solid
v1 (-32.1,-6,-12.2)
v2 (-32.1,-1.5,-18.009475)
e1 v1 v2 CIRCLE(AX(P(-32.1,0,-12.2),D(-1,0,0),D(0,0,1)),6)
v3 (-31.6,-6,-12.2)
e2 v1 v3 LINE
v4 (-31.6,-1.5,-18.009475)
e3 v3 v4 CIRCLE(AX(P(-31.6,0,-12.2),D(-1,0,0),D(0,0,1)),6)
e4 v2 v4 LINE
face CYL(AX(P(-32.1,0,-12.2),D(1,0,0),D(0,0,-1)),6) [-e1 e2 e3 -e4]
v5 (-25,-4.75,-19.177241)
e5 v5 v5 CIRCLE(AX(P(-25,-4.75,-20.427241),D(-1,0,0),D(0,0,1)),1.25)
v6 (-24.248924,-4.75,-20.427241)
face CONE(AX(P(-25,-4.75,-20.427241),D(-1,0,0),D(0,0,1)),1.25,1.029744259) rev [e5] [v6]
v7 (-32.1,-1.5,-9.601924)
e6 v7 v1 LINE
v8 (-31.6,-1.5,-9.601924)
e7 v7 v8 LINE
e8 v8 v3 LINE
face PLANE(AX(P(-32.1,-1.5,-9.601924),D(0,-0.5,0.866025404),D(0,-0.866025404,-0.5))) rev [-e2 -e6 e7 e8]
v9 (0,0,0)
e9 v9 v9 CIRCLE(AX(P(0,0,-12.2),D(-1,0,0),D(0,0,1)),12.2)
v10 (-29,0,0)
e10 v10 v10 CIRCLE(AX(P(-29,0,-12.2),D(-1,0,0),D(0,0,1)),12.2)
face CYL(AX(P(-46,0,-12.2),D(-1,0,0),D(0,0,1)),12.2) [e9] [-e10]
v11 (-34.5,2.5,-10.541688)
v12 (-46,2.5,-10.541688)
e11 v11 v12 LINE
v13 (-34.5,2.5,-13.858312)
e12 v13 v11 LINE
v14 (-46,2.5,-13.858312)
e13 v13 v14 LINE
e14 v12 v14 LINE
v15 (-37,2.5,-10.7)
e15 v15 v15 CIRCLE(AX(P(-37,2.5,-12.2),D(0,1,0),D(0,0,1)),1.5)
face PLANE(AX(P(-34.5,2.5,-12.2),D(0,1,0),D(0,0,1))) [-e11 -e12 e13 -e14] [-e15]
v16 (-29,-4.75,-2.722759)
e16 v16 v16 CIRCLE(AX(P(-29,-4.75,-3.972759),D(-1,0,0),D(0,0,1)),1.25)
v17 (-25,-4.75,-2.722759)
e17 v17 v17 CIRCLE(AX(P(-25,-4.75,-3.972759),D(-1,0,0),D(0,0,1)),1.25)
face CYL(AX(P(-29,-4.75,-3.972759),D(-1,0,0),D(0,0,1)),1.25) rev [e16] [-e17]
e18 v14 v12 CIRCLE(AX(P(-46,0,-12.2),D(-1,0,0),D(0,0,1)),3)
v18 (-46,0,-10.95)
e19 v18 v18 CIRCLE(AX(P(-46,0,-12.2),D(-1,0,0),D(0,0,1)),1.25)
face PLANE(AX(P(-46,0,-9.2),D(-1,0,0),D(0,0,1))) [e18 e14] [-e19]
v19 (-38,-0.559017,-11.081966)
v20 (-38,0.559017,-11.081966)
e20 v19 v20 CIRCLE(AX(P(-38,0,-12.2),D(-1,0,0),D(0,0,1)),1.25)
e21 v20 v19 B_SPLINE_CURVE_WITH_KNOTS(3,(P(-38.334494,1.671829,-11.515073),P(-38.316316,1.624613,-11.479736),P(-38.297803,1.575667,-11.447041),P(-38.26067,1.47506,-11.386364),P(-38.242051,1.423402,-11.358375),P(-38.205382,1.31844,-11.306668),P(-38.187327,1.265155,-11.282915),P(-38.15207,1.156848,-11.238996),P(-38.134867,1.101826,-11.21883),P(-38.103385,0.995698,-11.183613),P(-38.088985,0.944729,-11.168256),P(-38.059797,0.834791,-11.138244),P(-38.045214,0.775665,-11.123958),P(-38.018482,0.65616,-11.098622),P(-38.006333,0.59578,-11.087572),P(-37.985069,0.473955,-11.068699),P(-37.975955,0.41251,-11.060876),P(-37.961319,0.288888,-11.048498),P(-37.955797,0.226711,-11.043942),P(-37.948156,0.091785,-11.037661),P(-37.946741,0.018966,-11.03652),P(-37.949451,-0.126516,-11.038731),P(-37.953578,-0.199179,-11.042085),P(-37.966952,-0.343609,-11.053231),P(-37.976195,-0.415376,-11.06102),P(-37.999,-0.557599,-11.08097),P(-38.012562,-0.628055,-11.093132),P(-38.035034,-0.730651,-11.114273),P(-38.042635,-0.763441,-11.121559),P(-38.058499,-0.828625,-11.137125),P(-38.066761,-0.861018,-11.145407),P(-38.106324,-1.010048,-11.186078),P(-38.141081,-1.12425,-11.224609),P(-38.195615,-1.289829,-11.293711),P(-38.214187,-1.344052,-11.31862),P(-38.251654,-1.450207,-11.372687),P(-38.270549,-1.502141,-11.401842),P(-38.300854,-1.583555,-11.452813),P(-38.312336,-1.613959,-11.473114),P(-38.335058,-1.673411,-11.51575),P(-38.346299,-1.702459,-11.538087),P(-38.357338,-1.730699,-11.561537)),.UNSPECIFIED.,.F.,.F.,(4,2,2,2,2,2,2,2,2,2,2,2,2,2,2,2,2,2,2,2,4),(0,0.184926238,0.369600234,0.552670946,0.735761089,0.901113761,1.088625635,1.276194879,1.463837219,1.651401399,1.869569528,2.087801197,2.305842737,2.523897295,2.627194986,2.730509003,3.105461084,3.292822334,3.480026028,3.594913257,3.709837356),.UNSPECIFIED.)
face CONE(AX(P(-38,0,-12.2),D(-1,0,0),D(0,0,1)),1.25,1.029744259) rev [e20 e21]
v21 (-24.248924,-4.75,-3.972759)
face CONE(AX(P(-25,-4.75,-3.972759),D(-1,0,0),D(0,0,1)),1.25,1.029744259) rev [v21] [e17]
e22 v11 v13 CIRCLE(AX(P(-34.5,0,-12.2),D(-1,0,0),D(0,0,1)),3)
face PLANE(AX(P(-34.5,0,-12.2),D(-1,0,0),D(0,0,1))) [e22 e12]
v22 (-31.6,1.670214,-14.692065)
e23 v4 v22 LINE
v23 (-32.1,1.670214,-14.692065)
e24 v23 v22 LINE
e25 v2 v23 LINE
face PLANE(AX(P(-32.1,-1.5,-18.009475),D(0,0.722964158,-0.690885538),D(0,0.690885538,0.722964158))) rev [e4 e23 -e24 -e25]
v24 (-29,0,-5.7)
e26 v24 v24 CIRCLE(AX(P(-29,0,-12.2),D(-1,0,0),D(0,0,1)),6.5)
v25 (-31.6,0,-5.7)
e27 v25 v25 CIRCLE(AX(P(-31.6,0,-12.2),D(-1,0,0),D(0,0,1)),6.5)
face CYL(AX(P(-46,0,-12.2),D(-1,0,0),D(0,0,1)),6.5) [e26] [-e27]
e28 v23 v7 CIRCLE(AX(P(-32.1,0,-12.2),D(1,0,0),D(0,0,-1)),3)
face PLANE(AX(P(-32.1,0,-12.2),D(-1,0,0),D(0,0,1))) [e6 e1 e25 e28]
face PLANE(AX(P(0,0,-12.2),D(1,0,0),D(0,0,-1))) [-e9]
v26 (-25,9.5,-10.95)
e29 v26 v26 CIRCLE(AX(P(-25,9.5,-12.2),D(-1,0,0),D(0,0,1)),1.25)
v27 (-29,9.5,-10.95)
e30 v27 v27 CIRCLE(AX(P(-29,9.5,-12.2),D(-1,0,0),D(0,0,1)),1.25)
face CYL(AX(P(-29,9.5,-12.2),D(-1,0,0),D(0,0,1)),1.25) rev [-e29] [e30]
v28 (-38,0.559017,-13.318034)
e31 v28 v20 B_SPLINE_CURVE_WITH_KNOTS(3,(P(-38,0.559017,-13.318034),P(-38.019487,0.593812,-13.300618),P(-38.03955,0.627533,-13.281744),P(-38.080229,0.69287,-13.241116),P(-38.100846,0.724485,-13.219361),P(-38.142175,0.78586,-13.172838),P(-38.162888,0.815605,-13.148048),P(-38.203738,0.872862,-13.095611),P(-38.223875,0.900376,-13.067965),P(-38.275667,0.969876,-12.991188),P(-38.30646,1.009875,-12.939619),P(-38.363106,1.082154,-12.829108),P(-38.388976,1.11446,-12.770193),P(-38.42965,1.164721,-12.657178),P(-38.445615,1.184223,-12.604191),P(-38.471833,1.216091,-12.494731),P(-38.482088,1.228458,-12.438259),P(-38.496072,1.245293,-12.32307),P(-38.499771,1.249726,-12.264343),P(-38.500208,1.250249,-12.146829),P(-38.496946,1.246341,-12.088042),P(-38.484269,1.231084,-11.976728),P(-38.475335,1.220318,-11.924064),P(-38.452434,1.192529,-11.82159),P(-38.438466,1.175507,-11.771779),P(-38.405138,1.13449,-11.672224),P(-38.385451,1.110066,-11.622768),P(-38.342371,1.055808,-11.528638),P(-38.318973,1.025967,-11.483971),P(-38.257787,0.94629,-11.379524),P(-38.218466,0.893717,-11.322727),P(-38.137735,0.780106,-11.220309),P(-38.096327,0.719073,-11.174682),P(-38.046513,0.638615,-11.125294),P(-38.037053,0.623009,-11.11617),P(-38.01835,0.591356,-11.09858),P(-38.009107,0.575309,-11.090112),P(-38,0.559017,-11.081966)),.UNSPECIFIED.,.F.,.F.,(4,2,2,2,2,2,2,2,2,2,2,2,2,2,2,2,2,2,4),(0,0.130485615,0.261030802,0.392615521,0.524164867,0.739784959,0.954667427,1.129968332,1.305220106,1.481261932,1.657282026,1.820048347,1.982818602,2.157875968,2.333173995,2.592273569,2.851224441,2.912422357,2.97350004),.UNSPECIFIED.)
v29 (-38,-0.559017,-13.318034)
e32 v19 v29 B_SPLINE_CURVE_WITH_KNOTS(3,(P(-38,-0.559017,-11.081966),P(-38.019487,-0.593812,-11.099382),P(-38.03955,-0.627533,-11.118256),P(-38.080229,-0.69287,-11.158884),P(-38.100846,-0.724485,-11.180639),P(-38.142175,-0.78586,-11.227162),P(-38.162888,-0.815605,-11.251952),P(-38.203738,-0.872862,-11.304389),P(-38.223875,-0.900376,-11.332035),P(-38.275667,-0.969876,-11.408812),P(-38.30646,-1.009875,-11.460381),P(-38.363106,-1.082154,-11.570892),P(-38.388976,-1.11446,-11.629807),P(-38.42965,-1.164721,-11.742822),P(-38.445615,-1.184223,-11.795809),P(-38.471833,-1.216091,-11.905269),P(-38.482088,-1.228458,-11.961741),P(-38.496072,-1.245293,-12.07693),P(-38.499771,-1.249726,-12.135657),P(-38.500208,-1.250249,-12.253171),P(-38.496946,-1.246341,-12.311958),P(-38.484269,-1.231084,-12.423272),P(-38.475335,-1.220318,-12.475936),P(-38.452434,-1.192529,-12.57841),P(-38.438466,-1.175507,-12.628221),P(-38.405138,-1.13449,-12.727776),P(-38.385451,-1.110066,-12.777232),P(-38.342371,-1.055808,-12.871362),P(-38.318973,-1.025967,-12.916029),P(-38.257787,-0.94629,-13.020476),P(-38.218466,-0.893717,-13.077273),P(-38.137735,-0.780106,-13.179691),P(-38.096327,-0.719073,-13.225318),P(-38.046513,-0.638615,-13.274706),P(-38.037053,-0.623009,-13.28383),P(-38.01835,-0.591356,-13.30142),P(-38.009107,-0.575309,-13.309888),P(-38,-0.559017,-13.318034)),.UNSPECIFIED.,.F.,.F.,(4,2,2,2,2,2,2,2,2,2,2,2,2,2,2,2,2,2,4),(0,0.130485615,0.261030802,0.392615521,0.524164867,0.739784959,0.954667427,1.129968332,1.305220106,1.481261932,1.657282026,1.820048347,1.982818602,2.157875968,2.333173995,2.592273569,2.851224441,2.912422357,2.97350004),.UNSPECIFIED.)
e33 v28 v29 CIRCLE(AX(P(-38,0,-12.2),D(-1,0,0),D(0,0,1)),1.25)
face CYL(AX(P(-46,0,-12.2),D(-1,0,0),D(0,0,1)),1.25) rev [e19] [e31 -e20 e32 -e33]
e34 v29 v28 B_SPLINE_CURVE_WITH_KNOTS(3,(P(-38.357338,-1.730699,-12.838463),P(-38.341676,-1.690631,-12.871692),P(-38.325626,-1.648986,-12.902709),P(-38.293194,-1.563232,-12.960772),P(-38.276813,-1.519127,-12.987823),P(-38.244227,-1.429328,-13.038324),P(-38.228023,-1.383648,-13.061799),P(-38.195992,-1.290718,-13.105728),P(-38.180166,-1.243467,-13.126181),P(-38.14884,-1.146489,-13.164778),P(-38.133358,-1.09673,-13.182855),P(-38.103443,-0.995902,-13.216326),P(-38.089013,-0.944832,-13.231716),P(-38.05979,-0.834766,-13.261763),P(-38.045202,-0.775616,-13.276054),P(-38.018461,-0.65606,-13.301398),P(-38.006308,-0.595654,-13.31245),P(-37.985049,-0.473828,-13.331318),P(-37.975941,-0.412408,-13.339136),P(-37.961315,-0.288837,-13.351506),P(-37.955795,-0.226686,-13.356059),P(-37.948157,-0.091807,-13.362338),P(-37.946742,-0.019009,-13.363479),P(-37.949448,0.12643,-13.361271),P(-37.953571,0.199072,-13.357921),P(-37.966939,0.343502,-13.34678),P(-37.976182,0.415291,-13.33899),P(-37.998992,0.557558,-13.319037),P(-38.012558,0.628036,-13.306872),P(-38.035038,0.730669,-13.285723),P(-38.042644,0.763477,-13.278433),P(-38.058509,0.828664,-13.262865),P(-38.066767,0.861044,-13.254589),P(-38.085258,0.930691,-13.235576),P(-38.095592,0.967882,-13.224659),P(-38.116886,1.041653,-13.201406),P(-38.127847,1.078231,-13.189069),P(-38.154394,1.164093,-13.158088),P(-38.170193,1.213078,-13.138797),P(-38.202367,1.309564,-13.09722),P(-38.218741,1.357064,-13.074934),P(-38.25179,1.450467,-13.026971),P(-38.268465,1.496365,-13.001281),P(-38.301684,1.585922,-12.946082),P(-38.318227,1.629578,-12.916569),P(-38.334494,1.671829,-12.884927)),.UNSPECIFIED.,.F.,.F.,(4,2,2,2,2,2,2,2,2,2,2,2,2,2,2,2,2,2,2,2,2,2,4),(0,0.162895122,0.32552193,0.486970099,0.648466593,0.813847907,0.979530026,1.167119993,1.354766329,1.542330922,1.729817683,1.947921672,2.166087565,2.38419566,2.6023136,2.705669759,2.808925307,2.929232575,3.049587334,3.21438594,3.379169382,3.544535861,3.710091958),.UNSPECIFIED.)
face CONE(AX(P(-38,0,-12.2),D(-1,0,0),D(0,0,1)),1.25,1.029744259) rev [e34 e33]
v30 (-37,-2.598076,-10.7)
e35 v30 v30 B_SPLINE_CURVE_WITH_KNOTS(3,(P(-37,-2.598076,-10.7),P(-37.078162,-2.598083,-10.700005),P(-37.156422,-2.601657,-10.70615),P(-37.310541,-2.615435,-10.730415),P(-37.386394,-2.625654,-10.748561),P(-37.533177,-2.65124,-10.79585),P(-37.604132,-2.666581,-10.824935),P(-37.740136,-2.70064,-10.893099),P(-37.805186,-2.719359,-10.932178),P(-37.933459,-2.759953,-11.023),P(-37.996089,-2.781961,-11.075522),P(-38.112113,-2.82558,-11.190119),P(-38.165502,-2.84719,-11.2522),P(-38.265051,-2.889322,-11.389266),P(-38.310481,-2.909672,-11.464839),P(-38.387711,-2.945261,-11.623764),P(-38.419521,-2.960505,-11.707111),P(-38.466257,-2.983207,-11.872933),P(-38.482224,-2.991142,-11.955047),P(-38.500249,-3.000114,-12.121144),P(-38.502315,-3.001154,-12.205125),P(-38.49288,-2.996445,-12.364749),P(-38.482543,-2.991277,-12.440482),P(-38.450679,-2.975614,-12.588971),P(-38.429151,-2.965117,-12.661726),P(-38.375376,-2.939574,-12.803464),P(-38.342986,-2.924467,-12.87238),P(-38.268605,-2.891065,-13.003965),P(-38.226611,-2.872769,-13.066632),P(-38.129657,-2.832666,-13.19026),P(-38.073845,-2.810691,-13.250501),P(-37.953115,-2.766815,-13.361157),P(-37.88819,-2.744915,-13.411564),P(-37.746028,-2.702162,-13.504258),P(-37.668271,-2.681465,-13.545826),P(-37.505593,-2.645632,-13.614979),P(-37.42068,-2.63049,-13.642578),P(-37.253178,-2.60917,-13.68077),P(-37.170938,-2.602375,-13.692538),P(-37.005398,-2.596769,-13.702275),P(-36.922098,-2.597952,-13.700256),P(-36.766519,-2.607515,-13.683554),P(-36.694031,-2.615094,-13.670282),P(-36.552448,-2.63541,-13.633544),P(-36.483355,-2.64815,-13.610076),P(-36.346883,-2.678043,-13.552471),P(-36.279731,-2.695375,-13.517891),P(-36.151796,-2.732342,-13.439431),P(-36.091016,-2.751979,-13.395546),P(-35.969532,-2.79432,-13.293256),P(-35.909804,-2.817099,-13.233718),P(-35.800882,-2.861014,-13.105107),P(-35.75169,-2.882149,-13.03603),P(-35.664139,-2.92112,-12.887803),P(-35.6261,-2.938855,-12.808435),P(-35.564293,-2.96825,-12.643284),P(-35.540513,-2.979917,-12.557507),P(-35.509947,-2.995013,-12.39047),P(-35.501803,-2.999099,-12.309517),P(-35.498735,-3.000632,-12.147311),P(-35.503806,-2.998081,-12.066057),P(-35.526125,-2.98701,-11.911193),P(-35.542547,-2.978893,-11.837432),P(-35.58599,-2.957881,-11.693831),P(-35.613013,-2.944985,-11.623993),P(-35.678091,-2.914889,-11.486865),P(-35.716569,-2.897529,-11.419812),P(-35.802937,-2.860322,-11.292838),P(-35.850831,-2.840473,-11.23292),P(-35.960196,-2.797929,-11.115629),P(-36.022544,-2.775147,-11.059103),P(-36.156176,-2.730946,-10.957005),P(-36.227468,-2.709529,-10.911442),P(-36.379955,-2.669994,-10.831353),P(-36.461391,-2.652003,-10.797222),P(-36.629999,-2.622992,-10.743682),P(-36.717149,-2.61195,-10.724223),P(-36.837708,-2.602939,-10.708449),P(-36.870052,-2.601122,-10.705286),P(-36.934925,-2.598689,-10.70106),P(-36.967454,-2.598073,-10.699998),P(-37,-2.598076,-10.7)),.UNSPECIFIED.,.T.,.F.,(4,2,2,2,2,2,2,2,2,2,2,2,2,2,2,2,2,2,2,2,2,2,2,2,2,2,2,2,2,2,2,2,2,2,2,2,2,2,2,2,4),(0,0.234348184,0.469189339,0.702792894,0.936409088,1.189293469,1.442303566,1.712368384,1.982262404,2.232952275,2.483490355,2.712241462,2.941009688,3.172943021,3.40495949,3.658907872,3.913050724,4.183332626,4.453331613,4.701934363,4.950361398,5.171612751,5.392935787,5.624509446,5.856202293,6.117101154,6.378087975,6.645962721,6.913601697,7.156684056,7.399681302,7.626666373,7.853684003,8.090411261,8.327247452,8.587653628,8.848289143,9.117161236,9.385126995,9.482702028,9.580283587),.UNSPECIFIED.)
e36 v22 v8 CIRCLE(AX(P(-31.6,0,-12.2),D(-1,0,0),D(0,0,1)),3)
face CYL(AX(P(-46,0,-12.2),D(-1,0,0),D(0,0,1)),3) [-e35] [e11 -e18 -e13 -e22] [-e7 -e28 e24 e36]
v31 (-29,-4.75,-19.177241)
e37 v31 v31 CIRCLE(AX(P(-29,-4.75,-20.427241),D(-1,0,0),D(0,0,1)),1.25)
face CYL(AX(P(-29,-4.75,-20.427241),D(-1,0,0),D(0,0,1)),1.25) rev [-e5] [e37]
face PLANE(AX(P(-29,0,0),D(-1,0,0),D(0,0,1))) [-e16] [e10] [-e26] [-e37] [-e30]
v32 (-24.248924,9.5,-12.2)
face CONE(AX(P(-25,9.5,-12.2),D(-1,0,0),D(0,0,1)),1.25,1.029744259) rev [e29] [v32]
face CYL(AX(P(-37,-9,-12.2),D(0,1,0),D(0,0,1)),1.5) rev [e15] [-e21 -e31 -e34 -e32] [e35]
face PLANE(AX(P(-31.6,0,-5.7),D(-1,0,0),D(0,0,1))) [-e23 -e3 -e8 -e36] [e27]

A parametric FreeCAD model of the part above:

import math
import FreeCAD as App
import Part
import Sketcher
Q = App.Units.Quantity

doc = App.newDocument("Part")
params = doc.addObject("Spreadsheet::Sheet", "Params")
for row, (alias, value) in enumerate([
    ("sketch1_width", "29 mm"),
    ("sketch1_width2", "46 mm"),
    ("sketch1_height", "3 mm"),
    ("sketch1_width3", "14.4 mm"),
    ("sketch1_height2", "12.2 mm"),
    ("revolution_angle", "360 deg"),
    ("sketch2_radius", "3 mm"),
    ("pocket1_length", "11.5 mm"),
    ("sketch3_diameter", "2.5 mm"),
    ("hole_diameter", "2.5 mm"),
    ("hole_depth", "8 mm"),
    ("sketch4_diameter", "3 mm"),
    ("pocket2_length", "11.5 mm"),
    ("sketch5_diameter", "2.5 mm"),
    ("hole2_diameter", "2.5 mm"),
    ("hole2_depth", "4 mm"),
    ("sketch6_radius", "6 mm"),
    ("sketch6_radius2", "3 mm"),
    ("pad1_length", "0.5 mm"),
], start=1):
    params.set(f"A{row}", alias)
    params.set(f"B{row}", "=" + value)
    params.setAlias(f"B{row}", alias)

body = doc.addObject("PartDesign::Body", "Body")

# Sketch on XZ plane
sketch1 = doc.addObject("Sketcher::SketchObject", "Sketch")
body.addObject(sketch1)
sketch1.AttachmentSupport = (doc.XZ_Plane, [""])
sketch1.MapMode = "FlatFace"
sketch1.addGeometry([
    Part.LineSegment(App.Vector(-29, 0, 0), App.Vector(0, 0, 0)),  # 0
    Part.LineSegment(App.Vector(0, 0, 0), App.Vector(0, -12.2, 0)),  # 1
    Part.LineSegment(App.Vector(0, -12.2, 0), App.Vector(-46, -12.2, 0)),  # 2
    Part.LineSegment(App.Vector(-46, -12.2, 0), App.Vector(-46, -9.2, 0)),  # 3
    Part.LineSegment(App.Vector(-46, -9.2, 0), App.Vector(-31.6, -9.2, 0)),  # 4
    Part.LineSegment(App.Vector(-31.6, -9.2, 0), App.Vector(-31.6, -5.7, 0)),  # 5
    Part.LineSegment(App.Vector(-31.6, -5.7, 0), App.Vector(-29, -5.7, 0)),  # 6
    Part.LineSegment(App.Vector(-29, -5.7, 0), App.Vector(-29, 0, 0)),  # 7
], False)
sketch1.addGeometry(Part.LineSegment(App.Vector(-46, -12.2, 0), App.Vector(0, -12.2, 0)), True)  # axis
sketch1.addConstraint([
    Sketcher.Constraint("Coincident", 0, 2, 1, 1),
    Sketcher.Constraint("Coincident", 1, 2, 2, 1),
    Sketcher.Constraint("Coincident", 2, 2, 3, 1),
    Sketcher.Constraint("Coincident", 3, 2, 4, 1),
    Sketcher.Constraint("Coincident", 4, 2, 5, 1),
    Sketcher.Constraint("Coincident", 5, 2, 6, 1),
    Sketcher.Constraint("Coincident", 6, 2, 7, 1),
    Sketcher.Constraint("Coincident", 7, 2, 0, 1),
    Sketcher.Constraint("Horizontal", 0),
    Sketcher.Constraint("Vertical", 1),
    Sketcher.Constraint("Horizontal", 2),
    Sketcher.Constraint("Vertical", 3),
    Sketcher.Constraint("Horizontal", 4),
    Sketcher.Constraint("Vertical", 5),
    Sketcher.Constraint("Horizontal", 6),
    Sketcher.Constraint("Vertical", 7),
    Sketcher.Constraint("Horizontal", 8),
    Sketcher.Constraint("Coincident", 0, 2, -1, 1),
    Sketcher.Constraint("Coincident", 8, 1, 2, 2),
    Sketcher.Constraint("PointOnObject", 8, 2, -2),
    Sketcher.Constraint("DistanceX", 0, 1, 0, 2, Q("29 mm")),
    Sketcher.Constraint("DistanceX", 2, 2, 2, 1, Q("46 mm")),
    Sketcher.Constraint("DistanceY", 3, 1, 3, 2, Q("3 mm")),
    Sketcher.Constraint("DistanceX", 4, 1, 4, 2, Q("14.4 mm")),
    Sketcher.Constraint("DistanceY", 1, 2, 1, 1, Q("12.2 mm")),
    Sketcher.Constraint("DistanceY", 5, 1, 5, 2, Q("3.5 mm")),
])
sketch1.setExpression("Constraints[20]", "Params.sketch1_width")
sketch1.setExpression("Constraints[21]", "Params.sketch1_width2")
sketch1.setExpression("Constraints[22]", "Params.sketch1_height")
sketch1.setExpression("Constraints[23]", "Params.sketch1_width3")
sketch1.setExpression("Constraints[24]", "Params.sketch1_height2")
revolution = doc.addObject("PartDesign::Revolution", "Revolution")
body.addObject(revolution)
revolution.Profile = sketch1
revolution.ReferenceAxis = (sketch1, ["Axis0"])
revolution.setExpression("Angle", "Params.revolution_angle")

# Sketch on YZ plane
sketch2 = doc.addObject("Sketcher::SketchObject", "Sketch001")
body.addObject(sketch2)
sketch2.AttachmentSupport = (doc.YZ_Plane, [""])
sketch2.MapMode = "FlatFace"
sketch2.AttachmentOffset = App.Placement(App.Vector(0, 0, -46), App.Rotation())
sketch2.addGeometry([
    Part.ArcOfCircle(Part.Circle(App.Vector(0, -12.2, 0), App.Vector(0, 0, 1), 3), math.radians(-34), math.radians(34)),
    Part.LineSegment(App.Vector(2.5, -13.9, 0), App.Vector(2.5, -10.5, 0)),
], False)
sketch2.addConstraint([
    Sketcher.Constraint("Coincident", 0, 1, 1, 1),
    Sketcher.Constraint("Coincident", 1, 2, 0, 2),
    Sketcher.Constraint("Vertical", 1),
    Sketcher.Constraint("PointOnObject", 0, 3, -2),
    Sketcher.Constraint("Radius", 0, Q("3 mm")),
    Sketcher.Constraint("DistanceY", 0, 3, -1, 1, Q("12.2 mm")),
    Sketcher.Constraint("DistanceX", -1, 1, 0, 1, Q("2.5 mm")),
])
sketch2.setExpression("Constraints[4]", "Params.sketch2_radius")
pocket1 = doc.addObject("PartDesign::Pocket", "Pocket")
body.addObject(pocket1)
pocket1.Profile = sketch2
pocket1.setExpression("Length", "Params.pocket1_length")
pocket1.Reversed = True

# Sketch on YZ plane
sketch3 = doc.addObject("Sketcher::SketchObject", "Sketch002")
body.addObject(sketch3)
sketch3.AttachmentSupport = (doc.YZ_Plane, [""])
sketch3.MapMode = "FlatFace"
sketch3.AttachmentOffset = App.Placement(App.Vector(0, 0, -46), App.Rotation())
sketch3.addGeometry(Part.Circle(App.Vector(0, -12.2, 0), App.Vector(0, 0, 1), 1.2), False)
sketch3.addConstraint([
    Sketcher.Constraint("PointOnObject", 0, 3, -2),
    Sketcher.Constraint("Diameter", 0, Q("2.5 mm")),
    Sketcher.Constraint("DistanceY", 0, 3, -1, 1, Q("12.2 mm")),
])
sketch3.setExpression("Constraints[1]", "Params.sketch3_diameter")
doc.recompute()
hole = doc.addObject("PartDesign::Hole", "Hole")
body.addObject(hole)
hole.Profile = sketch3
hole.ThreadType = "None"
hole.setExpression("Diameter", "Params.hole_diameter")
hole.DepthType = "Dimension"
hole.setExpression("Depth", "Params.hole_depth")
hole.DrillPoint = "Angled"
hole.DrillPointAngle = 118
hole.Reversed = True

# Sketch on XZ plane
sketch4 = doc.addObject("Sketcher::SketchObject", "Sketch003")
body.addObject(sketch4)
sketch4.AttachmentSupport = (doc.XZ_Plane, [""])
sketch4.MapMode = "FlatFace"
sketch4.AttachmentOffset = App.Placement(App.Vector(0, 0, -2.5), App.Rotation())
sketch4.addGeometry(Part.Circle(App.Vector(-37, -12.2, 0), App.Vector(0, 0, 1), 1.5), False)
sketch4.addConstraint([
    Sketcher.Constraint("Diameter", 0, Q("3 mm")),
    Sketcher.Constraint("DistanceX", 0, 3, -1, 1, Q("37 mm")),
    Sketcher.Constraint("DistanceY", 0, 3, -1, 1, Q("12.2 mm")),
])
sketch4.setExpression("Constraints[0]", "Params.sketch4_diameter")
pocket2 = doc.addObject("PartDesign::Pocket", "Pocket001")
body.addObject(pocket2)
pocket2.Profile = sketch4
pocket2.setExpression("Length", "Params.pocket2_length")
pocket2.Reversed = True

# Sketch on YZ plane
sketch5 = doc.addObject("Sketcher::SketchObject", "Sketch004")
body.addObject(sketch5)
sketch5.AttachmentSupport = (doc.YZ_Plane, [""])
sketch5.MapMode = "FlatFace"
sketch5.AttachmentOffset = App.Placement(App.Vector(0, 0, -29), App.Rotation())
sketch5.addGeometry([
    Part.Circle(App.Vector(9.5, -12.2, 0), App.Vector(0, 0, 1), 1.2),
    Part.Circle(App.Vector(-4.8, -20.4, 0), App.Vector(0, 0, 1), 1.2),
    Part.Circle(App.Vector(-4.8, -4, 0), App.Vector(0, 0, 1), 1.2),
], False)
sketch5.addConstraint([
    Sketcher.Constraint("Equal", 0, 1),
    Sketcher.Constraint("Equal", 1, 2),
    Sketcher.Constraint("Vertical", 1, 3, 2, 3),
    Sketcher.Constraint("Diameter", 0, Q("2.5 mm")),
    Sketcher.Constraint("DistanceX", -1, 1, 0, 3, Q("9.5 mm")),
    Sketcher.Constraint("DistanceY", 0, 3, -1, 1, Q("12.2 mm")),
    Sketcher.Constraint("DistanceX", 1, 3, -1, 1, Q("4.75 mm")),
    Sketcher.Constraint("DistanceY", 1, 3, -1, 1, Q("20.427241 mm")),
    Sketcher.Constraint("DistanceY", 2, 3, -1, 1, Q("3.972759 mm")),
])
sketch5.setExpression("Constraints[3]", "Params.sketch5_diameter")
doc.recompute()
hole2 = doc.addObject("PartDesign::Hole", "Hole001")
body.addObject(hole2)
hole2.Profile = sketch5
hole2.ThreadType = "None"
hole2.setExpression("Diameter", "Params.hole2_diameter")
hole2.DepthType = "Dimension"
hole2.setExpression("Depth", "Params.hole2_depth")
hole2.DrillPoint = "Angled"
hole2.DrillPointAngle = 118
hole2.Reversed = True

# Sketch on YZ plane
sketch6 = doc.addObject("Sketcher::SketchObject", "Sketch005")
body.addObject(sketch6)
sketch6.AttachmentSupport = (doc.YZ_Plane, [""])
sketch6.MapMode = "FlatFace"
sketch6.AttachmentOffset = App.Placement(App.Vector(0, 0, -31.6), App.Rotation())
sketch6.addGeometry([
    Part.LineSegment(App.Vector(-1.5, -9.6, 0), App.Vector(-6, -12.2, 0)),
    Part.ArcOfCircle(Part.Circle(App.Vector(0, -12.2, 0), App.Vector(0, 0, 1), 6), math.radians(-104), math.radians(180)),
    Part.LineSegment(App.Vector(-1.5, -18, 0), App.Vector(1.7, -14.7, 0)),
    Part.ArcOfCircle(Part.Circle(App.Vector(0, -12.2, 0), App.Vector(0, 0, 1), 3), math.radians(-56), math.radians(120)),
], False)
sketch6.addConstraint([
    Sketcher.Constraint("Coincident", 0, 2, 1, 2),
    Sketcher.Constraint("Coincident", 1, 1, 2, 1),
    Sketcher.Constraint("Coincident", 2, 2, 3, 1),
    Sketcher.Constraint("Tangent", 3, 2, 0, 1),
    Sketcher.Constraint("Coincident", 3, 3, 1, 3),
    Sketcher.Constraint("PointOnObject", 1, 3, -2),
    Sketcher.Constraint("Horizontal", 3, 3, 0, 2),
    Sketcher.Constraint("Vertical", 1, 1, 3, 2),
    Sketcher.Constraint("Radius", 1, Q("6 mm")),
    Sketcher.Constraint("Radius", 3, Q("3 mm")),
    Sketcher.Constraint("DistanceY", 1, 3, -1, 1, Q("12.2 mm")),
    Sketcher.Constraint("DistanceY", 1, 1, 2, 2, Q("3.31741 mm")),
])
sketch6.setExpression("Constraints[8]", "Params.sketch6_radius")
sketch6.setExpression("Constraints[9]", "Params.sketch6_radius2")
pad1 = doc.addObject("PartDesign::Pad", "Pad")
body.addObject(pad1)
pad1.Profile = sketch6
pad1.setExpression("Length", "Params.pad1_length")
pad1.Reversed = True

doc.recompute()
